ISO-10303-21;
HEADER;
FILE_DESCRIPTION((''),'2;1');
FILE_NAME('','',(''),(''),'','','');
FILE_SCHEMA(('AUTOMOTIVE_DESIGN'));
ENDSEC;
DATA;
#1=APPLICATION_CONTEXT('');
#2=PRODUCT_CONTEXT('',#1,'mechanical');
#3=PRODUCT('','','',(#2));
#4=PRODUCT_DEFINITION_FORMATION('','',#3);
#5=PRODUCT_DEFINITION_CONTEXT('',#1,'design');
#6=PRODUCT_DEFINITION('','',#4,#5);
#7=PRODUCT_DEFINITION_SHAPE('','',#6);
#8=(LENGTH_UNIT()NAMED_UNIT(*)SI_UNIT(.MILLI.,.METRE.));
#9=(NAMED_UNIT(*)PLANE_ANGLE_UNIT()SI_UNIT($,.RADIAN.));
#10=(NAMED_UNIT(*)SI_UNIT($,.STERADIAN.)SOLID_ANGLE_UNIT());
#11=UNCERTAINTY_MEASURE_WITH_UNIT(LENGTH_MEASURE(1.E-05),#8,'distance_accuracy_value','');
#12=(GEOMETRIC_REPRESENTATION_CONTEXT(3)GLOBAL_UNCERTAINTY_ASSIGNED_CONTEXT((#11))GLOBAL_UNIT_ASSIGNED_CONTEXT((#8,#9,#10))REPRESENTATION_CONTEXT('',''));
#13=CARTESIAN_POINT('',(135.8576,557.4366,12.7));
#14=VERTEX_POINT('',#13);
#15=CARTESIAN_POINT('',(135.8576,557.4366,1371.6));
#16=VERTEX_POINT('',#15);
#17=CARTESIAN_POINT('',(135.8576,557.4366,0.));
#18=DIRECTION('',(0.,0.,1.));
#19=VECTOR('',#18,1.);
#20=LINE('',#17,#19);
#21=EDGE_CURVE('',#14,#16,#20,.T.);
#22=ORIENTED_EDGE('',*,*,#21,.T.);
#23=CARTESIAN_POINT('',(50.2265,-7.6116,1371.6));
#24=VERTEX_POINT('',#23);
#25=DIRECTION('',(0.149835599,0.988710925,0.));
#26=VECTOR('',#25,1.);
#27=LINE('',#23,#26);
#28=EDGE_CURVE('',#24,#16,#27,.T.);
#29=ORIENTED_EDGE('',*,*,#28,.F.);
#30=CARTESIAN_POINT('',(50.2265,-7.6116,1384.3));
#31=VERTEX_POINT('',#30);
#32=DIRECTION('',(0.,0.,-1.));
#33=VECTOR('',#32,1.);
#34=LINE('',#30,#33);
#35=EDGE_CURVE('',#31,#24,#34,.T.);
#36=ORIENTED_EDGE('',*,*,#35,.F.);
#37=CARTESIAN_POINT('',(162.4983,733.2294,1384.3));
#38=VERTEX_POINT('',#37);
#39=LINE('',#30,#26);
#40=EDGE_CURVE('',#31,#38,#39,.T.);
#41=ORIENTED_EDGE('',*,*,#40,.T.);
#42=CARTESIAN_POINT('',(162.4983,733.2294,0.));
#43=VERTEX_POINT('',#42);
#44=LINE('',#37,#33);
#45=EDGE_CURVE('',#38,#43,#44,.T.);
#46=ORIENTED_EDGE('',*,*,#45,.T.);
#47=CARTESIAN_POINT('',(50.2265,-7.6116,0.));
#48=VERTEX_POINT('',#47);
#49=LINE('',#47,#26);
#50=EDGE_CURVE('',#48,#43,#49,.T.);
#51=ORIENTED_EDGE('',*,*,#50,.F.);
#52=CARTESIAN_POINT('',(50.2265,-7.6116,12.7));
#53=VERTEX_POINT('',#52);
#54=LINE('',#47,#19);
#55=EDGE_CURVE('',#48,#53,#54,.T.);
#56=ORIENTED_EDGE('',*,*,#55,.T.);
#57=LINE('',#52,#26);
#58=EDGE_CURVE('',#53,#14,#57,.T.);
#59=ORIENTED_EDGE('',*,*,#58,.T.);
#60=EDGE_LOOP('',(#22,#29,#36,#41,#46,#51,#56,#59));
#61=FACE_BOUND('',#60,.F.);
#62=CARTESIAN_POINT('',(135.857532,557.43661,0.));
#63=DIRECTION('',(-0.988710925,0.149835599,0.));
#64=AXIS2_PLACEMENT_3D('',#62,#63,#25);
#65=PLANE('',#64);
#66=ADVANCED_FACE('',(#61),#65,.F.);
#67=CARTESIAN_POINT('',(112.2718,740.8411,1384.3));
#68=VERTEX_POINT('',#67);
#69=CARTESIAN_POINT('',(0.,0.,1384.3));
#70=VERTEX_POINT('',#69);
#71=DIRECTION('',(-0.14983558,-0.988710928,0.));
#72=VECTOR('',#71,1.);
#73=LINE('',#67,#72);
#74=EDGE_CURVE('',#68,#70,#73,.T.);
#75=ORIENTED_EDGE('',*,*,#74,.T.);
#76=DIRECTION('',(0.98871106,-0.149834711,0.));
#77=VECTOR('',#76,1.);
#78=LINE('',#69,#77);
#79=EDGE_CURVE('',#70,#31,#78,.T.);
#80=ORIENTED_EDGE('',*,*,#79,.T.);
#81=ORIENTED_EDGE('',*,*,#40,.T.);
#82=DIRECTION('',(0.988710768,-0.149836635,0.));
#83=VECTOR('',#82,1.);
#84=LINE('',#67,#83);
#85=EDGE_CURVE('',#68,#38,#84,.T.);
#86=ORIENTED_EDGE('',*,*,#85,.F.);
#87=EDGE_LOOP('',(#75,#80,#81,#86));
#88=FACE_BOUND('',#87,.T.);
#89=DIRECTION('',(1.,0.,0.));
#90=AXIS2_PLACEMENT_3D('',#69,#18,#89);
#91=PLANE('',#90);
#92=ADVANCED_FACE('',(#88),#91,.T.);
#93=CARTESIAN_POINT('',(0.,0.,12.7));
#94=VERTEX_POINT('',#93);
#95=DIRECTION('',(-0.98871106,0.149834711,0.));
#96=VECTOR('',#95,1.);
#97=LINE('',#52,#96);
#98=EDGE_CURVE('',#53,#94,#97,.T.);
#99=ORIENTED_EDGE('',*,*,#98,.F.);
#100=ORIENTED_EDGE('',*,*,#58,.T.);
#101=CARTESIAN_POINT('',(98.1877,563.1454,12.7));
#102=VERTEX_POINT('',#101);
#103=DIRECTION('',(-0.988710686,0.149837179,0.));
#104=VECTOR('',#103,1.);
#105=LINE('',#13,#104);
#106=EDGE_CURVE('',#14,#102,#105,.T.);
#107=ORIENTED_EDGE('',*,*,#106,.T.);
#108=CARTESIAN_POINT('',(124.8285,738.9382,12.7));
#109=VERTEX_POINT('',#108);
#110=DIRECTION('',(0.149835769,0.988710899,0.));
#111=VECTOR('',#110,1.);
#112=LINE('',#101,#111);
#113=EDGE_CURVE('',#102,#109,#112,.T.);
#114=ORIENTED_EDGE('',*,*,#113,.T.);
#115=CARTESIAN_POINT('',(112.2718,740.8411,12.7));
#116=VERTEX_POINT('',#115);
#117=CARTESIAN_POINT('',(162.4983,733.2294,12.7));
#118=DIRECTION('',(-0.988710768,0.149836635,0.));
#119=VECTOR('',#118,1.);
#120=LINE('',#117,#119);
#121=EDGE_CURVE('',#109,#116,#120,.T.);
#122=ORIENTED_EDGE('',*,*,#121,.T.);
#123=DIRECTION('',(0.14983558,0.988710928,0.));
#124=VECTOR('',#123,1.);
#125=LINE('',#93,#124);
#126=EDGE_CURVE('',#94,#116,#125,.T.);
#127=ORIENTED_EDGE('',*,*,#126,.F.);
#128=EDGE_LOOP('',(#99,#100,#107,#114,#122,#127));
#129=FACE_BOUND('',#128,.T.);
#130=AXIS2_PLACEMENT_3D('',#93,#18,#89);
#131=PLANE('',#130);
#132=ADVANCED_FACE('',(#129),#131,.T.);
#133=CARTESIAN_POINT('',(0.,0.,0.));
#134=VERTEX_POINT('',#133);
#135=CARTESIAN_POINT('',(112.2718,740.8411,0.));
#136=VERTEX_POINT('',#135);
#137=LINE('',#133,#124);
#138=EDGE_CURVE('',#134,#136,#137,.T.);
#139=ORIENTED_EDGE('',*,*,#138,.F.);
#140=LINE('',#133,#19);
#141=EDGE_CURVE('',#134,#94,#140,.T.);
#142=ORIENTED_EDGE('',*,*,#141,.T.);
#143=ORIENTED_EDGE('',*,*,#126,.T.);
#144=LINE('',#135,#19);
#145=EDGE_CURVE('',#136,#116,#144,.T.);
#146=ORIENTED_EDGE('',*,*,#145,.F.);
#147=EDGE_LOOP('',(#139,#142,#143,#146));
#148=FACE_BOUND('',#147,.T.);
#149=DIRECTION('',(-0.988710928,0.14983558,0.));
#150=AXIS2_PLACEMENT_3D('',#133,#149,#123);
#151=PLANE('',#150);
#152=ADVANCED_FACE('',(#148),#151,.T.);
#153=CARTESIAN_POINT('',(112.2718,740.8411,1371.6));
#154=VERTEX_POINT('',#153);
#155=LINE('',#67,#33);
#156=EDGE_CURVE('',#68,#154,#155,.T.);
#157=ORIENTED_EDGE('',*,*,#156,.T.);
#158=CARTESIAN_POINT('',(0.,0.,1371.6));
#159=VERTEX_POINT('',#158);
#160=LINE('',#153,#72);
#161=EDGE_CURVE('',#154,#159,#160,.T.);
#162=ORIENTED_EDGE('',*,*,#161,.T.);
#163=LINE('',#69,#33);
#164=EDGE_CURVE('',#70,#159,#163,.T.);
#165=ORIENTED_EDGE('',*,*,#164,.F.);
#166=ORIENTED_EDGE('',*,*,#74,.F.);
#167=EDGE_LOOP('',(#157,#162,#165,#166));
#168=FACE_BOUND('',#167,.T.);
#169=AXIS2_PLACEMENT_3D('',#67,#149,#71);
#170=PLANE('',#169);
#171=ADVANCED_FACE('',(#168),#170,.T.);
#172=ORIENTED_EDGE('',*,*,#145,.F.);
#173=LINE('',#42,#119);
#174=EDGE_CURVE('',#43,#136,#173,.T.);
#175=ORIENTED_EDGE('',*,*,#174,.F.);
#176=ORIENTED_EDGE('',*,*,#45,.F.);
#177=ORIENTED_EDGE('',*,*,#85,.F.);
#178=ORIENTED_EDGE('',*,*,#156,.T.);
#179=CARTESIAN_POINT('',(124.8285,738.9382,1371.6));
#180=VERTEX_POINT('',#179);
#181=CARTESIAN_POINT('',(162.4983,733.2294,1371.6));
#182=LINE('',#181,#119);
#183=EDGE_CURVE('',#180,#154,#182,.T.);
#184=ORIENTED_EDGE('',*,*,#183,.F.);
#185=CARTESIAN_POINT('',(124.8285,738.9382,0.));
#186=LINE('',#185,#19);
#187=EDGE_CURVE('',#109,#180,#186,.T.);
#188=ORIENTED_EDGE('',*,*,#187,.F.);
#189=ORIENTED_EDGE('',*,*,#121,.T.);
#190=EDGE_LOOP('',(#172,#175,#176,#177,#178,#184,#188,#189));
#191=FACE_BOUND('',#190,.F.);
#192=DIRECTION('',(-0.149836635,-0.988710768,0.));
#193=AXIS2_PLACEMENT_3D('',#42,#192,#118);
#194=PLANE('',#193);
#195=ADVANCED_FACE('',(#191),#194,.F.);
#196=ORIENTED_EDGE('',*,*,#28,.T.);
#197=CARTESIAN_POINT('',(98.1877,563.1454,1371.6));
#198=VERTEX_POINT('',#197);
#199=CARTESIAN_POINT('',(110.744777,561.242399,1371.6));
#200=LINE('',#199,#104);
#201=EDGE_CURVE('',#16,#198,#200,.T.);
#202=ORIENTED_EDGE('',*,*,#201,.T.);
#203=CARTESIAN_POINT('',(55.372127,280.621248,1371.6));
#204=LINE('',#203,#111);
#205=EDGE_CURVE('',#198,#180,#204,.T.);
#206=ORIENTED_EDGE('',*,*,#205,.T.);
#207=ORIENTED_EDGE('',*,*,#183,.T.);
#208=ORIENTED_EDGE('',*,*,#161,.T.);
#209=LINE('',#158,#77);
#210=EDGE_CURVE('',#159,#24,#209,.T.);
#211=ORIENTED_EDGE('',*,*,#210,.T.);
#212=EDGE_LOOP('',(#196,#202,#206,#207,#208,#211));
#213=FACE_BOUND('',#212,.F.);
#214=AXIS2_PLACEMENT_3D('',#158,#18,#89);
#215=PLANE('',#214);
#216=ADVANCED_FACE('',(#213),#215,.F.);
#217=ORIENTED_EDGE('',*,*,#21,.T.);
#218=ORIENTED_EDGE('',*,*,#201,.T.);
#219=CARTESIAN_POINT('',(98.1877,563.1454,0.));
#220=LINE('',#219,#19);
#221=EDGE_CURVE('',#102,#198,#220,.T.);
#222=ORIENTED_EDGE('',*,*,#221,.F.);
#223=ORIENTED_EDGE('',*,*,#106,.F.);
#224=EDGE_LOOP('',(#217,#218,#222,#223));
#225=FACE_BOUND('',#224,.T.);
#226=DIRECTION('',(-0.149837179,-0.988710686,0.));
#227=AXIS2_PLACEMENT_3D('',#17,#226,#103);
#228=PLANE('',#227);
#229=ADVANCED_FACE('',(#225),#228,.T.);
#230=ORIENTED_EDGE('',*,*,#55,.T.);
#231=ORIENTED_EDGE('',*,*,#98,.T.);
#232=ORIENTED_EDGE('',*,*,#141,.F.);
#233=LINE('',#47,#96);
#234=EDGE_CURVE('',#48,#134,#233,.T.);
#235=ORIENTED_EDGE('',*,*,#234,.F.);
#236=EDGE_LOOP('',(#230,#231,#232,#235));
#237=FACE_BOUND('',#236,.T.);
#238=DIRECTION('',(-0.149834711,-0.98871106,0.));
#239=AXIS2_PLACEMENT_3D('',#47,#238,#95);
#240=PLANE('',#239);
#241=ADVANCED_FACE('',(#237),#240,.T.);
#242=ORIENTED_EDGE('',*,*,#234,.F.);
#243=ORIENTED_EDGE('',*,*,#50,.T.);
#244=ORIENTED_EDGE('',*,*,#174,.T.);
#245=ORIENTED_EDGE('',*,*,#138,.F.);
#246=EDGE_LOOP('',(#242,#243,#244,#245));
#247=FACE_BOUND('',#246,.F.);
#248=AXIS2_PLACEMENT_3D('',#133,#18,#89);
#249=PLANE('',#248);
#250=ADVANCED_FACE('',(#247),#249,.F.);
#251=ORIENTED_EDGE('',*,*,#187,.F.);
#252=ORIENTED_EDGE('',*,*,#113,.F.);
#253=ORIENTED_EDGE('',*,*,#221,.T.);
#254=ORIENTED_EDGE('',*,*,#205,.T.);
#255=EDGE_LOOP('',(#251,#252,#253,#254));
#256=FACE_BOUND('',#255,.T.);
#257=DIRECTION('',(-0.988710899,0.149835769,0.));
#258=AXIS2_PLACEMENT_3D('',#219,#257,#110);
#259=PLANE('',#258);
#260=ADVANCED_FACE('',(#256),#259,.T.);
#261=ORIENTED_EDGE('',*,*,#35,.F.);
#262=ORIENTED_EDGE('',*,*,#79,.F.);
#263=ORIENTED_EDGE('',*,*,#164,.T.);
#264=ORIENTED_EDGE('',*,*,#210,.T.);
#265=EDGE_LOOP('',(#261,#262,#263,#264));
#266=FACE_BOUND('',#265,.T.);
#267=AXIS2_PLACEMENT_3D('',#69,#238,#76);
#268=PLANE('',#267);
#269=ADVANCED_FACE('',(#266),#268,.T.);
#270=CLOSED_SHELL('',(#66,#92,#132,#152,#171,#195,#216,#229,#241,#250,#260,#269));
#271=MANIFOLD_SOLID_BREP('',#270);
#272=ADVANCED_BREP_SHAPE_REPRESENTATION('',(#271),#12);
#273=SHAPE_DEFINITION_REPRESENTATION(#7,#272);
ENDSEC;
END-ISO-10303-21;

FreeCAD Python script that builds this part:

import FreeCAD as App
import Part
import Sketcher

V = App.Vector
Q = App.Units.Quantity

doc = App.newDocument("Part")
body = doc.addObject("PartDesign::Body", "Body")

# Sketch on XY plane
sketch1 = doc.addObject("Sketcher::SketchObject", "Sketch")
body.addObject(sketch1)
sketch1.AttachmentSupport = (doc.XY_Plane, [""])
sketch1.MapMode = "FlatFace"
sketch1.addGeometry([
    Part.LineSegment(V(162.4983, 733.2294, 0), V(124.828495, 738.938164, 0)),
    Part.LineSegment(V(124.8285, 738.9382, 0), V(98.1877, 563.1454, 0)),
    Part.LineSegment(V(98.1877, 563.1454, 0), V(135.8576, 557.4366, 0)),
    Part.LineSegment(V(135.857532, 557.43661, 0), V(162.4983, 733.2294, 0)),
], False)
sketch1.addConstraint([
    Sketcher.Constraint("Coincident", 0, 2, 1, 1),
    Sketcher.Constraint("Coincident", 1, 2, 2, 1),
    Sketcher.Constraint("Coincident", 2, 2, 3, 1),
    Sketcher.Constraint("Coincident", 3, 2, 0, 1),
    Sketcher.Constraint("Perpendicular", 0, 1),
    Sketcher.Constraint("Perpendicular", 1, 2),
    Sketcher.Constraint("Perpendicular", 2, 3),
    Sketcher.Constraint("Distance", 1, Q("7 in")),
    Sketcher.Constraint("Distance", 0, Q("1.5 in")),
    Sketcher.Constraint("DistanceX", -1, 1, 0, 2, Q("4.9145 in")),
    Sketcher.Constraint("DistanceY", -1, 1, 3, 2, Q("28.8673 in")),
    Sketcher.Constraint("DistanceY", -1, 1, 0, 2, 738.9382),
])
pad1 = doc.addObject("PartDesign::Pad", "Pad")
body.addObject(pad1)
pad1.Profile = sketch1
pad1.Length = Q("54.5 in")

# Sketch on XY plane
sketch2 = doc.addObject("Sketcher::SketchObject", "Sketch001")
body.addObject(sketch2)
sketch2.AttachmentSupport = (doc.XY_Plane, [""])
sketch2.MapMode = "FlatFace"
sketch2.addGeometry([
    Part.LineSegment(V(112.2718, 740.8411, 0), V(0, 0, 0)),  # 0
    Part.LineSegment(V(0, 0, 0), V(50.2265, -7.6116, 0)),  # 1
    Part.LineSegment(V(50.2265, -7.6116, 0), V(135.857532, 557.43661, 0)),  # 2
    Part.LineSegment(V(135.8576, 557.4366, 0), V(98.1877, 563.1454, 0)),  # 3
    Part.LineSegment(V(98.1877, 563.1454, 0), V(124.8285, 738.9382, 0)),  # 4
    Part.LineSegment(V(124.828495, 738.938164, 0), V(112.2718, 740.8411, 0)),  # 5
], False)
sketch2.addConstraint([
    Sketcher.Constraint("Coincident", 0, 2, 1, 1),
    Sketcher.Constraint("Coincident", 1, 2, 2, 1),
    Sketcher.Constraint("Coincident", 2, 2, 3, 1),
    Sketcher.Constraint("Coincident", 3, 2, 4, 1),
    Sketcher.Constraint("Coincident", 4, 2, 5, 1),
    Sketcher.Constraint("Coincident", 5, 2, 0, 1),
    Sketcher.Constraint("Coincident", 0, 2, -1, 1),
    Sketcher.Constraint("Perpendicular", 0, 1),
    Sketcher.Constraint("Perpendicular", 1, 2),
    Sketcher.Constraint("Perpendicular", 2, 3),
    Sketcher.Constraint("Perpendicular", 3, 4),
    Sketcher.Constraint("Perpendicular", 4, 5),
    Sketcher.Constraint("Distance", 1, Q("2 in")),
    Sketcher.Constraint("Distance", 4, Q("7 in")),
    Sketcher.Constraint("Distance", 0, Q("29.5 in")),
    Sketcher.Constraint("Distance", 3, Q("1.5 in")),
    Sketcher.Constraint("DistanceY", 1, 2, 2, 2, Q("22.246 in")),
])
pad2 = doc.addObject("PartDesign::Pad", "Pad001")
body.addObject(pad2)
pad2.Profile = sketch2
pad2.Length = Q("0.5 in")

# Sketch on XY plane
sketch3 = doc.addObject("Sketcher::SketchObject", "Sketch002")
body.addObject(sketch3)
sketch3.AttachmentSupport = (doc.XY_Plane, [""])
sketch3.MapMode = "FlatFace"
sketch3.AttachmentOffset = App.Placement(V(0, 0, 54.5 * 25.4), App.Rotation())
sketch3.addGeometry([
    Part.LineSegment(V(50.2265, -7.6116, 0), V(162.4983, 733.2294, 0)),  # 0
    Part.LineSegment(V(162.4983, 733.2294, 0), V(124.8285, 738.9382, 0)),  # 1
    Part.LineSegment(V(124.828495, 738.938164, 0), V(112.2718, 740.8411, 0)),  # 2
    Part.LineSegment(V(112.2718, 740.8411, 0), V(0, 0, 0)),  # 3
    Part.LineSegment(V(0, 0, 0), V(50.2265, -7.6116, 0)),  # 4
], False)
sketch3.addConstraint([
    Sketcher.Constraint("Coincident", 0, 2, 1, 1),
    Sketcher.Constraint("Coincident", 1, 2, 2, 1),
    Sketcher.Constraint("Coincident", 2, 2, 3, 1),
    Sketcher.Constraint("Coincident", 3, 2, 4, 1),
    Sketcher.Constraint("Coincident", 4, 2, 0, 1),
    Sketcher.Constraint("Coincident", 3, 2, -1, 1),
    Sketcher.Constraint("Perpendicular", 0, 1),
    Sketcher.Constraint("Parallel", 1, 2),
    Sketcher.Constraint("Perpendicular", 2, 3),
    Sketcher.Constraint("Perpendicular", 3, 4),
    Sketcher.Constraint("Distance", 4, Q("2 in")),
    Sketcher.Constraint("Distance", 0, Q("29.5 in")),
    Sketcher.Constraint("Distance", 1, Q("1.5 in")),
    Sketcher.Constraint("DistanceY", -1, 1, 0, 2, Q("28.8673 in")),
])
pad3 = doc.addObject("PartDesign::Pad", "Pad002")
body.addObject(pad3)
pad3.Profile = sketch3
pad3.Length = Q("0.5 in")
pad3.Reversed = True

doc.recompute()
